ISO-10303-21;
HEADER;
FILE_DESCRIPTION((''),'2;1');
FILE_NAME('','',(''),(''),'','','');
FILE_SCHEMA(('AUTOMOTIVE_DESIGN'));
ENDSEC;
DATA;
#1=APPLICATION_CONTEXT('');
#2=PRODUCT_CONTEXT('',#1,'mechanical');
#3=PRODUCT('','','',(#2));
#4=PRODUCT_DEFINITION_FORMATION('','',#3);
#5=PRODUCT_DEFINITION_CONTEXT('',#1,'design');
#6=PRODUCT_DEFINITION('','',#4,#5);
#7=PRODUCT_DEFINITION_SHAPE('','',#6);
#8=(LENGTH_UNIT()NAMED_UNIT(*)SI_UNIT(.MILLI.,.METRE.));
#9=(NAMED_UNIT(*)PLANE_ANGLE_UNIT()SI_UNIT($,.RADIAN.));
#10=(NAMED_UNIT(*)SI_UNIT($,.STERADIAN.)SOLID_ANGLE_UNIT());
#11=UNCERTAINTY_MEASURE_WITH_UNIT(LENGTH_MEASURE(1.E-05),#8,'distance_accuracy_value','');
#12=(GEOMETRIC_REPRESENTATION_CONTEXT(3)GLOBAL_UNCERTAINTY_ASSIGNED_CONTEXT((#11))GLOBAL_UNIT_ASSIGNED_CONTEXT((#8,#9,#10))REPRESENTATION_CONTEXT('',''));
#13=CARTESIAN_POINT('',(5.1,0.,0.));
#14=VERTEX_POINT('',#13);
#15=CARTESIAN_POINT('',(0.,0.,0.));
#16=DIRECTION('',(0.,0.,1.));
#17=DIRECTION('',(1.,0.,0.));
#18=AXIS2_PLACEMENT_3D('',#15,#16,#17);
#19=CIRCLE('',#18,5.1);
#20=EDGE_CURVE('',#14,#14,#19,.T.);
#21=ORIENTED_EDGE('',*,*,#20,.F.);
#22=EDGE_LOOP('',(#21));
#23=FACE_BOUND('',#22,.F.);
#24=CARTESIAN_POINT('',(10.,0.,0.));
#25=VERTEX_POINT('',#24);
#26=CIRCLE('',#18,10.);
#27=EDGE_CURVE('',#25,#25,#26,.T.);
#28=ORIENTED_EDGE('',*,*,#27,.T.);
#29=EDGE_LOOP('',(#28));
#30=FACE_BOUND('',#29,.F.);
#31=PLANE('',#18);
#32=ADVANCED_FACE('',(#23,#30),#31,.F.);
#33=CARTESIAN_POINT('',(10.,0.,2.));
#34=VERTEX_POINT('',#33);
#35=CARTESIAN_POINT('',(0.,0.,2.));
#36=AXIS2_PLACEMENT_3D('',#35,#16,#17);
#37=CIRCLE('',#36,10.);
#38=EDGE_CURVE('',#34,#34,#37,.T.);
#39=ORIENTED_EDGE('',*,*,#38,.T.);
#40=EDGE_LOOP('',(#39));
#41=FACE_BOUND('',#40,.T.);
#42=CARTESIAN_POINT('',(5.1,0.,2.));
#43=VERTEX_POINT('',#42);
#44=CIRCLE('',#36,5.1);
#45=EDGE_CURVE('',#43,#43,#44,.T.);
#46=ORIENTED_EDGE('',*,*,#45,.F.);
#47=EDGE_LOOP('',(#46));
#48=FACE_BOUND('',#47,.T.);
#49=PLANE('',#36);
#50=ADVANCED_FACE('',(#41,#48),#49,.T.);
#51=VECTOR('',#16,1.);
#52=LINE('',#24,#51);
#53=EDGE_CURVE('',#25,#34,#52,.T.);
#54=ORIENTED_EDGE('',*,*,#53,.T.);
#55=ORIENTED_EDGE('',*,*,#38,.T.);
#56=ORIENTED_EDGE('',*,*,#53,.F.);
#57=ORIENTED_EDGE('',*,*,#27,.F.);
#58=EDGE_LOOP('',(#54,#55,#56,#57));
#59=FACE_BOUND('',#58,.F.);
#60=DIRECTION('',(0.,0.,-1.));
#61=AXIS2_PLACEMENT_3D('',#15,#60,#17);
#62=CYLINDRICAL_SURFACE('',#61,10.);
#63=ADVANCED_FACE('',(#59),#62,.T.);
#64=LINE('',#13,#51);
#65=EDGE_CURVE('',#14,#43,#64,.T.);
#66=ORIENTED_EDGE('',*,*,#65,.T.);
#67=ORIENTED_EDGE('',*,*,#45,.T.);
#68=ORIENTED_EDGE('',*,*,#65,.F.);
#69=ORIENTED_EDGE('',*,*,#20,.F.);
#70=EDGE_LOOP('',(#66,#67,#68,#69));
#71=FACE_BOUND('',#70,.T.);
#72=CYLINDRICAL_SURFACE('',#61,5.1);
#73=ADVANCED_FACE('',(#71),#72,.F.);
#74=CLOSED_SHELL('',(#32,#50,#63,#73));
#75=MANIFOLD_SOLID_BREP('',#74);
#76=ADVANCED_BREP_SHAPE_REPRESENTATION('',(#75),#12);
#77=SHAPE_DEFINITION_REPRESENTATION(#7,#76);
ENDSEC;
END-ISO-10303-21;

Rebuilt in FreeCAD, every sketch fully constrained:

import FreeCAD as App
import Part
import Sketcher
Q = App.Units.Quantity

doc = App.newDocument("Part")
body = doc.addObject("PartDesign::Body", "Body")

sketch1 = doc.addObject("Sketcher::SketchObject", "Sketch")
body.addObject(sketch1)
sketch1.AttachmentSupport = (doc.XY_Plane, [""])
sketch1.MapMode = "FlatFace"
sketch1.addGeometry([
    Part.Circle(App.Vector(0, 0, 0), App.Vector(0, 0, 1), 10),
    Part.Circle(App.Vector(0, 0, 0), App.Vector(0, 0, 1), 5),
], False)
sketch1.addConstraint([
    Sketcher.Constraint("Coincident", 0, 3, -1, 1),
    Sketcher.Constraint("Coincident", 1, 3, -1, 1),
    Sketcher.Constraint("Diameter", 0, Q("20 mm")),
    Sketcher.Constraint("Diameter", 1, Q("10.2 mm")),
])
pad1 = doc.addObject("PartDesign::Pad", "Pad")
body.addObject(pad1)
pad1.Profile = sketch1
pad1.Length = 2

doc.recompute()
